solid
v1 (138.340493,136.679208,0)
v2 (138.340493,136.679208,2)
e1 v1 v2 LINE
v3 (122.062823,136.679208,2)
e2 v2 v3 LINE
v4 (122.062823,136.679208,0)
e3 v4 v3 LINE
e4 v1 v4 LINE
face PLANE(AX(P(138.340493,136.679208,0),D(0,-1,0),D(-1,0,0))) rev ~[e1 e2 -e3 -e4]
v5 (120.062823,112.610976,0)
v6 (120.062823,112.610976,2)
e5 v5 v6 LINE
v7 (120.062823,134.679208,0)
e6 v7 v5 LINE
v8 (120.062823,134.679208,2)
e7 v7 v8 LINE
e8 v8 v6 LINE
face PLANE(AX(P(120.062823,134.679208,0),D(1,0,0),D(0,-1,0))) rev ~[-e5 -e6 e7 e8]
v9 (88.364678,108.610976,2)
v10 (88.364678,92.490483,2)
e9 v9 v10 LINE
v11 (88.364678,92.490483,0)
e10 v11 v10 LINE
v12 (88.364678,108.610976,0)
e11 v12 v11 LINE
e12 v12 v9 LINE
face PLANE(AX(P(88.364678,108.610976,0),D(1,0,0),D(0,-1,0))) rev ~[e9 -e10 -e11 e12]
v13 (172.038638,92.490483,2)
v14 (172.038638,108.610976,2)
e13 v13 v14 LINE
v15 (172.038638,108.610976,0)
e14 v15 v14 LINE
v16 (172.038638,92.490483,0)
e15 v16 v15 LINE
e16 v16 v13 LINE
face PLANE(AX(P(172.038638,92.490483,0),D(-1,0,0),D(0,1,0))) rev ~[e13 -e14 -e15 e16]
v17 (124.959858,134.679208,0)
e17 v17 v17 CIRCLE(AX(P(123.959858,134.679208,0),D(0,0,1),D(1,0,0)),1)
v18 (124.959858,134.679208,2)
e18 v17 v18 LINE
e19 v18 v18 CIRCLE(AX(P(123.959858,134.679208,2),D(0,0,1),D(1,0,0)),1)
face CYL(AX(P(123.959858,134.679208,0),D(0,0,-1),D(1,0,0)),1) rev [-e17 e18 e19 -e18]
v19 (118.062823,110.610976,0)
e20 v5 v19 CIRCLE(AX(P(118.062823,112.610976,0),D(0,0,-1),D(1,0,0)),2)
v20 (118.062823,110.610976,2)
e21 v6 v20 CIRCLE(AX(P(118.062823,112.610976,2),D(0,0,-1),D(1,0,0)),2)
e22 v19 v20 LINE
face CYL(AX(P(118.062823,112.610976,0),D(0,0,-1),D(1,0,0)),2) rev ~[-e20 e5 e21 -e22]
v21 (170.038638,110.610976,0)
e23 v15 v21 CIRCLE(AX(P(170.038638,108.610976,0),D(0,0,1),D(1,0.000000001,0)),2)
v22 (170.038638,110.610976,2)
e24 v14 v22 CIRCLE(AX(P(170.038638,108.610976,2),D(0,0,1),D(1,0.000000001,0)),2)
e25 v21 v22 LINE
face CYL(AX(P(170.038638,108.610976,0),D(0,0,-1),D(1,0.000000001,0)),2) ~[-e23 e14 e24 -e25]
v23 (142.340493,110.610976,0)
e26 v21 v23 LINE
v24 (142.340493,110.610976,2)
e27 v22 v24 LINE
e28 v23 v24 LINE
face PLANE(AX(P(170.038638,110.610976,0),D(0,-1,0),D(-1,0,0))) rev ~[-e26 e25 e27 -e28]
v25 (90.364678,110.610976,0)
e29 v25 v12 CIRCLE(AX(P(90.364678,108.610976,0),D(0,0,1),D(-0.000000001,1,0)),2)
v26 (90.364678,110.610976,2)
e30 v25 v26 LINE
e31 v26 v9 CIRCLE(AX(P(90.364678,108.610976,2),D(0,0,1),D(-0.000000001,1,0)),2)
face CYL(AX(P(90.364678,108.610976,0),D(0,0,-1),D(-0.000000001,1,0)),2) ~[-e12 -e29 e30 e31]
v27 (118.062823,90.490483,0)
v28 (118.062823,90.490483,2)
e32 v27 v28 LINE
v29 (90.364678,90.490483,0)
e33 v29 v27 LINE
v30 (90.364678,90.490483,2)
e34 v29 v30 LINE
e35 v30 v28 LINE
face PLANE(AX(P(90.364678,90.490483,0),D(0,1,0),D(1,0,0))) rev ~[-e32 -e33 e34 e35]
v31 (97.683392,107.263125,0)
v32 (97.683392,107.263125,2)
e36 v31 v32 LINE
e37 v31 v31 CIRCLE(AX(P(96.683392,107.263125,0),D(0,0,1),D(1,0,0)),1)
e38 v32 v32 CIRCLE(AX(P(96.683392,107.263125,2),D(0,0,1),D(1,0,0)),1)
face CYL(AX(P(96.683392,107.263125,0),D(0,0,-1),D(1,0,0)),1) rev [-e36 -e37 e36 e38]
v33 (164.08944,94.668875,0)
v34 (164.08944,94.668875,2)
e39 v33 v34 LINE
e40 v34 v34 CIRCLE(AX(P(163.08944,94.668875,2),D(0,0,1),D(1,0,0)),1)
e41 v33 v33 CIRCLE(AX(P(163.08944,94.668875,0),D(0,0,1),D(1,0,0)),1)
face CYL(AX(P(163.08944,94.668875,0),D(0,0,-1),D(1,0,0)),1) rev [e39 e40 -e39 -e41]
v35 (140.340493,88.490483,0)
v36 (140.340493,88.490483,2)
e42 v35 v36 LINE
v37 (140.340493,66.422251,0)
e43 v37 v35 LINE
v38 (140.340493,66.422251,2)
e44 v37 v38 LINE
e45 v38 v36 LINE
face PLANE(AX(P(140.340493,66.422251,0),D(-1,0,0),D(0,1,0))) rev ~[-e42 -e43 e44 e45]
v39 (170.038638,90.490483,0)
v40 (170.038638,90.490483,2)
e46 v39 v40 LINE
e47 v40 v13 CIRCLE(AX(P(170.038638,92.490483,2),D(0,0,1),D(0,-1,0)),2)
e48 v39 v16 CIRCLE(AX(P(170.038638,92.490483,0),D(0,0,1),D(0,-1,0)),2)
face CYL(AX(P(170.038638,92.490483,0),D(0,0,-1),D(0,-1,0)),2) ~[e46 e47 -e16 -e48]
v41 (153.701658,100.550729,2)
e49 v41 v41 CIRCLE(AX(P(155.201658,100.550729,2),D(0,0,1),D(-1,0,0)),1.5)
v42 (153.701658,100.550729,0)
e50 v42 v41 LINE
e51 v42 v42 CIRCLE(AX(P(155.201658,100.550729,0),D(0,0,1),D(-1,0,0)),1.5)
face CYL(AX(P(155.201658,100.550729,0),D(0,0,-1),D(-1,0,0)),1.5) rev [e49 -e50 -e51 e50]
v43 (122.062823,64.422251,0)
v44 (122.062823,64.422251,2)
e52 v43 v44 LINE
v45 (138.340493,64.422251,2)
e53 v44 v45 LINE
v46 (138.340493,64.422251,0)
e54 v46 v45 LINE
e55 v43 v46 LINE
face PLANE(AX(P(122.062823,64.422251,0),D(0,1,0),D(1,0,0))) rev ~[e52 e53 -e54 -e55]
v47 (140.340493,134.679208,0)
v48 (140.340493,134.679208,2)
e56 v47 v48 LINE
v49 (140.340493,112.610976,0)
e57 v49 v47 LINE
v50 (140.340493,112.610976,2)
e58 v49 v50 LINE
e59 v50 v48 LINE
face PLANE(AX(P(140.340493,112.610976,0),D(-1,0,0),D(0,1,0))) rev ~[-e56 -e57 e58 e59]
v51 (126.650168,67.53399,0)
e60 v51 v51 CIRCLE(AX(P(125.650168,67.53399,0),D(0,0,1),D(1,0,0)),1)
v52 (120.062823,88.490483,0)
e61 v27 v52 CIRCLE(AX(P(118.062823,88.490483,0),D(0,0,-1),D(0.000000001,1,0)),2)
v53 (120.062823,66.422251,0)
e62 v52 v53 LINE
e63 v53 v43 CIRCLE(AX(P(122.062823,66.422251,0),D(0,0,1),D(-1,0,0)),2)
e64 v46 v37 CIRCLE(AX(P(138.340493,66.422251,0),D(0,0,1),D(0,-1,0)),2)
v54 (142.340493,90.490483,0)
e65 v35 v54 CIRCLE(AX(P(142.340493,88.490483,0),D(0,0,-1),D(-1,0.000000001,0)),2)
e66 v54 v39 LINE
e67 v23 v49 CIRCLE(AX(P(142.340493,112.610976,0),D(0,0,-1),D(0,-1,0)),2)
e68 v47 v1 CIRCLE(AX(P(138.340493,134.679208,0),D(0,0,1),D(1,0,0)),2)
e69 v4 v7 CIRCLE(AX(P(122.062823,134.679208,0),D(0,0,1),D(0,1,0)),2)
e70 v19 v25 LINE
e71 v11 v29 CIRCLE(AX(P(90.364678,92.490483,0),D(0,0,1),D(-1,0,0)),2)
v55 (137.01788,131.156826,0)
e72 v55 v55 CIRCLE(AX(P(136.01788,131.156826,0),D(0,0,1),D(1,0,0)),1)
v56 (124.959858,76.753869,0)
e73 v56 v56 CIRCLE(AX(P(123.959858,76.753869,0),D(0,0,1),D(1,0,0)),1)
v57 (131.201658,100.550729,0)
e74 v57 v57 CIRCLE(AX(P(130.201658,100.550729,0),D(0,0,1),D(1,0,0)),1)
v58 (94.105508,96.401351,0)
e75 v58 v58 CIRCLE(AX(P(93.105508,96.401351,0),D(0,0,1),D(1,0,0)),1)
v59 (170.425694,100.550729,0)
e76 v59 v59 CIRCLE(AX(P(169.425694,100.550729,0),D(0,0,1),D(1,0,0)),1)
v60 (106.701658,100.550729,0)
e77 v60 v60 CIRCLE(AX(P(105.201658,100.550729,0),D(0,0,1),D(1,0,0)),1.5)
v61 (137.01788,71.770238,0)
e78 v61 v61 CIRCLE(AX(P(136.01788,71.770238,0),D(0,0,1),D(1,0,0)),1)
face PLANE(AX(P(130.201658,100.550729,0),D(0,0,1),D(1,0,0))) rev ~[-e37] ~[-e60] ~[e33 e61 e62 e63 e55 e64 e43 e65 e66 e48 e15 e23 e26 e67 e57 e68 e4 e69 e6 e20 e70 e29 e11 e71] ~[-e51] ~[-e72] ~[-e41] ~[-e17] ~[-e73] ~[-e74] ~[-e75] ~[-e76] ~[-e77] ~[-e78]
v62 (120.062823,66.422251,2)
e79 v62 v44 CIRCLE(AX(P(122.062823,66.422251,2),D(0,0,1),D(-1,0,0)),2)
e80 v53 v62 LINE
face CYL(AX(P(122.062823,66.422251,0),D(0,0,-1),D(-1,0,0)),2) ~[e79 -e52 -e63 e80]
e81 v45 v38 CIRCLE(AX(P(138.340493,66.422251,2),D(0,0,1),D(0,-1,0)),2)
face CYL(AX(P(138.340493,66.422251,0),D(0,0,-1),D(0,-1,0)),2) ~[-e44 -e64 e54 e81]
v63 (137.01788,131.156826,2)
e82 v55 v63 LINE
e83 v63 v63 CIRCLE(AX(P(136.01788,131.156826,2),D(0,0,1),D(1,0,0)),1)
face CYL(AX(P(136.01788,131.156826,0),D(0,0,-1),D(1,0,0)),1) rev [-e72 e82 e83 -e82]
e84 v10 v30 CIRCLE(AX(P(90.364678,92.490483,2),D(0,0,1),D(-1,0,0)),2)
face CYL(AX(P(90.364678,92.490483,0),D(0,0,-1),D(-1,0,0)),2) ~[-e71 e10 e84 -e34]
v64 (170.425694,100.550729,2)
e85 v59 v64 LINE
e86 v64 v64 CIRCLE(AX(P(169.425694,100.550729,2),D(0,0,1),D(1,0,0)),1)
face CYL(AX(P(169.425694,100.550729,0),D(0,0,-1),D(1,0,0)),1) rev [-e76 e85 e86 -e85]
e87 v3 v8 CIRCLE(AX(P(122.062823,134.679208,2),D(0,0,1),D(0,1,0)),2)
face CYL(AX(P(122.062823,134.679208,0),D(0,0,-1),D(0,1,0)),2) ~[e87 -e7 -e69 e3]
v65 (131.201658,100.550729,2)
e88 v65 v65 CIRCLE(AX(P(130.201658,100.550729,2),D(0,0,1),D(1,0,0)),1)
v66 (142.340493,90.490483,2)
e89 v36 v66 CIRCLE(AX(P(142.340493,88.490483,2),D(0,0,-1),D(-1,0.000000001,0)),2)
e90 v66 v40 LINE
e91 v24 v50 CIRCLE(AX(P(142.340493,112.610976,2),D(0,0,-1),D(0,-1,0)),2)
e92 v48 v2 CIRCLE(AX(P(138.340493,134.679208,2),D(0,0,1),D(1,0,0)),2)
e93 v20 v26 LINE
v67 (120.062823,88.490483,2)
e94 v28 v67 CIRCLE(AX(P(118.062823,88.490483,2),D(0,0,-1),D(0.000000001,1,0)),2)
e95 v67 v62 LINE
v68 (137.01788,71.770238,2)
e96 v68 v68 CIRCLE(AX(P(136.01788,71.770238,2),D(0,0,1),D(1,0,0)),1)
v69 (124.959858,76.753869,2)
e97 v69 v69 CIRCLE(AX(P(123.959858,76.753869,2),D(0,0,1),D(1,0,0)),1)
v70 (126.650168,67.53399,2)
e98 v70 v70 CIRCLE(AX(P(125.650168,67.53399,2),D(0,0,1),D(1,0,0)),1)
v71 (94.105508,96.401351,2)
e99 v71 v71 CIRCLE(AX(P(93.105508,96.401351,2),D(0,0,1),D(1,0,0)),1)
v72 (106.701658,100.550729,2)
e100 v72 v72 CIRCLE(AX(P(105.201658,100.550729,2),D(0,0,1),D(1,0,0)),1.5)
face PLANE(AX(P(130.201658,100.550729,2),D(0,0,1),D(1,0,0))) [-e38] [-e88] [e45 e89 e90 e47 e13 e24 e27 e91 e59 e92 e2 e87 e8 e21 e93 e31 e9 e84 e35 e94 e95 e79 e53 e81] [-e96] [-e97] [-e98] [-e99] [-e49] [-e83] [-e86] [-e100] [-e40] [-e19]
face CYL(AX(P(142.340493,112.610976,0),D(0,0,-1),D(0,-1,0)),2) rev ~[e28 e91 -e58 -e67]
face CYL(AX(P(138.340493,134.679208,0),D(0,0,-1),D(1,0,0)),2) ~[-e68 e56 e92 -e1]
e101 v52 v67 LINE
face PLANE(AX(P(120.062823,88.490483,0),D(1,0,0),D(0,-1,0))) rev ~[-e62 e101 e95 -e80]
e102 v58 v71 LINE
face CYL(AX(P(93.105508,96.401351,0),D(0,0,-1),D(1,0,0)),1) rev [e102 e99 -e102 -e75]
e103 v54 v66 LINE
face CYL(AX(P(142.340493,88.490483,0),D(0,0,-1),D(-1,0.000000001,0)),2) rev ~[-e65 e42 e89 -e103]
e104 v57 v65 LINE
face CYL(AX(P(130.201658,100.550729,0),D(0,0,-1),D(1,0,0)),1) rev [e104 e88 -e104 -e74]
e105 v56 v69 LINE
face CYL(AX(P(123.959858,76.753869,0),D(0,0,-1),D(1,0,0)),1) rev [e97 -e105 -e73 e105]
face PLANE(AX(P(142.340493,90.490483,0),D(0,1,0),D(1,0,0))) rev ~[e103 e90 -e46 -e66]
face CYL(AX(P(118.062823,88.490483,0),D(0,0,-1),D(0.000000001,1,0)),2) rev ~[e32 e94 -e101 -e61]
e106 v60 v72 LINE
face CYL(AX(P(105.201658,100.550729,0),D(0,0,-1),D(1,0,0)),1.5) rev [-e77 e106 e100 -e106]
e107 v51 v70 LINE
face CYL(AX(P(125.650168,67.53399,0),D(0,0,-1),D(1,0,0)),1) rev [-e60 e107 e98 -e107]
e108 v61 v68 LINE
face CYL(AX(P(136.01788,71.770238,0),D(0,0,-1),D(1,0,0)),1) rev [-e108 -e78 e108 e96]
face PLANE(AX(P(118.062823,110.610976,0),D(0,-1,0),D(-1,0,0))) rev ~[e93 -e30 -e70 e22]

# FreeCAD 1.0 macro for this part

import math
import FreeCAD as App
import Part
import Sketcher

V = App.Vector
Q = App.Units.Quantity

doc = App.newDocument("Part")
body = doc.addObject("PartDesign::Body", "Body")

# Sketch on XY plane
sketch1 = body.newObject("Sketcher::SketchObject", "Sketch")
sketch1.AttachmentSupport = (doc.getObject("XY_Plane"), [""])
sketch1.MapMode = "FlatFace"
sketch1.addGeometry([
    Part.LineSegment(V(118.1, 110.6, 0), V(90.4, 110.6, 0)),  # 0
    Part.ArcOfCircle(Part.Circle(V(90.4, 108.6, 0), V(0, 0, 1), 2), math.radians(90), math.radians(180)),  # 1
    Part.LineSegment(V(88.4, 108.6, 0), V(88.4, 92.5, 0)),  # 2
    Part.ArcOfCircle(Part.Circle(V(90.4, 92.5, 0), V(0, 0, 1), 2), math.radians(180), math.radians(270)),  # 3
    Part.LineSegment(V(90.4, 90.5, 0), V(118.1, 90.5, 0)),  # 4
    Part.ArcOfCircle(Part.Circle(V(118.1, 88.5, 0), V(0, 0, 1), 2), math.radians(0), math.radians(90)),  # 5
    Part.LineSegment(V(120.1, 88.5, 0), V(120.1, 66.4, 0)),  # 6
    Part.ArcOfCircle(Part.Circle(V(122.1, 66.4, 0), V(0, 0, 1), 2), math.radians(180), math.radians(270)),  # 7
    Part.LineSegment(V(122.1, 64.4, 0), V(138.3, 64.4, 0)),  # 8
    Part.ArcOfCircle(Part.Circle(V(138.3, 66.4, 0), V(0, 0, 1), 2), math.radians(-90), math.radians(0)),  # 9
    Part.LineSegment(V(140.3, 66.4, 0), V(140.3, 88.5, 0)),  # 10
    Part.ArcOfCircle(Part.Circle(V(142.3, 88.5, 0), V(0, 0, 1), 2), math.radians(90), math.radians(180)),  # 11
    Part.LineSegment(V(142.3, 90.5, 0), V(170, 90.5, 0)),  # 12
    Part.ArcOfCircle(Part.Circle(V(170, 92.5, 0), V(0, 0, 1), 2), math.radians(-90), math.radians(0)),  # 13
    Part.LineSegment(V(172, 92.5, 0), V(172, 108.6, 0)),  # 14
    Part.ArcOfCircle(Part.Circle(V(170, 108.6, 0), V(0, 0, 1), 2), math.radians(0), math.radians(90)),  # 15
    Part.LineSegment(V(170, 110.6, 0), V(142.3, 110.6, 0)),  # 16
    Part.ArcOfCircle(Part.Circle(V(142.3, 112.6, 0), V(0, 0, 1), 2), math.radians(180), math.radians(270)),  # 17
    Part.LineSegment(V(140.3, 112.6, 0), V(140.3, 134.7, 0)),  # 18
    Part.ArcOfCircle(Part.Circle(V(138.3, 134.7, 0), V(0, 0, 1), 2), math.radians(0), math.radians(90)),  # 19
    Part.LineSegment(V(138.3, 136.7, 0), V(122.1, 136.7, 0)),  # 20
    Part.ArcOfCircle(Part.Circle(V(122.1, 134.7, 0), V(0, 0, 1), 2), math.radians(90), math.radians(180)),  # 21
    Part.LineSegment(V(120.1, 134.7, 0), V(120.1, 112.6, 0)),  # 22
    Part.ArcOfCircle(Part.Circle(V(118.1, 112.6, 0), V(0, 0, 1), 2), math.radians(-90), math.radians(0)),  # 23
    Part.Circle(V(125.7, 67.5, 0), V(0, 0, 1), 1),  # 24
    Part.Circle(V(124, 76.8, 0), V(0, 0, 1), 1),  # 25
    Part.Circle(V(93.1, 96.4, 0), V(0, 0, 1), 1),  # 26
    Part.Circle(V(105.2, 100.6, 0), V(0, 0, 1), 1.5),  # 27
    Part.Circle(V(130.2, 100.6, 0), V(0, 0, 1), 1),  # 28
    Part.Circle(V(136, 71.8, 0), V(0, 0, 1), 1),  # 29
    Part.Circle(V(155.2, 100.6, 0), V(0, 0, 1), 1.5),  # 30
    Part.Circle(V(163.1, 94.7, 0), V(0, 0, 1), 1),  # 31
    Part.Circle(V(169.4, 100.6, 0), V(0, 0, 1), 1),  # 32
    Part.Circle(V(96.7, 107.3, 0), V(0, 0, 1), 1),  # 33
    Part.Circle(V(124, 134.7, 0), V(0, 0, 1), 1),  # 34
    Part.Circle(V(136, 131.2, 0), V(0, 0, 1), 1),  # 35
], False)
sketch1.addConstraint([
    Sketcher.Constraint("Tangent", 0, 2, 1, 1),
    Sketcher.Constraint("Tangent", 1, 2, 2, 1),
    Sketcher.Constraint("Tangent", 2, 2, 3, 1),
    Sketcher.Constraint("Tangent", 3, 2, 4, 1),
    Sketcher.Constraint("Tangent", 4, 2, 5, 2),
    Sketcher.Constraint("Tangent", 5, 1, 6, 1),
    Sketcher.Constraint("Tangent", 6, 2, 7, 1),
    Sketcher.Constraint("Tangent", 7, 2, 8, 1),
    Sketcher.Constraint("Tangent", 8, 2, 9, 1),
    Sketcher.Constraint("Tangent", 9, 2, 10, 1),
    Sketcher.Constraint("Tangent", 10, 2, 11, 2),
    Sketcher.Constraint("Tangent", 11, 1, 12, 1),
    Sketcher.Constraint("Tangent", 12, 2, 13, 1),
    Sketcher.Constraint("Tangent", 13, 2, 14, 1),
    Sketcher.Constraint("Tangent", 14, 2, 15, 1),
    Sketcher.Constraint("Tangent", 15, 2, 16, 1),
    Sketcher.Constraint("Tangent", 16, 2, 17, 2),
    Sketcher.Constraint("Tangent", 17, 1, 18, 1),
    Sketcher.Constraint("Tangent", 18, 2, 19, 1),
    Sketcher.Constraint("Tangent", 19, 2, 20, 1),
    Sketcher.Constraint("Tangent", 20, 2, 21, 1),
    Sketcher.Constraint("Tangent", 21, 2, 22, 1),
    Sketcher.Constraint("Tangent", 22, 2, 23, 2),
    Sketcher.Constraint("Tangent", 23, 1, 0, 1),
    Sketcher.Constraint("Horizontal", 0),
    Sketcher.Constraint("Vertical", 2),
    Sketcher.Constraint("Horizontal", 4),
    Sketcher.Constraint("Vertical", 6),
    Sketcher.Constraint("Horizontal", 8),
    Sketcher.Constraint("Vertical", 10),
    Sketcher.Constraint("Horizontal", 12),
    Sketcher.Constraint("Vertical", 14),
    Sketcher.Constraint("Horizontal", 16),
    Sketcher.Constraint("Vertical", 18),
    Sketcher.Constraint("Horizontal", 20),
    Sketcher.Constraint("Vertical", 22),
    Sketcher.Constraint("Equal", 1, 3),
    Sketcher.Constraint("Equal", 3, 5),
    Sketcher.Constraint("Equal", 5, 7),
    Sketcher.Constraint("Equal", 7, 9),
    Sketcher.Constraint("Equal", 9, 11),
    Sketcher.Constraint("Equal", 11, 13),
    Sketcher.Constraint("Equal", 13, 15),
    Sketcher.Constraint("Equal", 15, 17),
    Sketcher.Constraint("Equal", 17, 19),
    Sketcher.Constraint("Equal", 19, 21),
    Sketcher.Constraint("Equal", 21, 23),
    Sketcher.Constraint("Equal", 24, 25),
    Sketcher.Constraint("Equal", 25, 26),
    Sketcher.Constraint("Equal", 26, 28),
    Sketcher.Constraint("Equal", 28, 29),
    Sketcher.Constraint("Equal", 27, 30),
    Sketcher.Constraint("Equal", 29, 31),
    Sketcher.Constraint("Equal", 31, 32),
    Sketcher.Constraint("Equal", 32, 33),
    Sketcher.Constraint("Equal", 33, 34),
    Sketcher.Constraint("Equal", 34, 35),
    Sketcher.Constraint("Horizontal", 5, 3, 11, 3),
    Sketcher.Constraint("Horizontal", 1, 3, 15, 3),
    Sketcher.Constraint("Horizontal", 27, 3, 28, 3),
    Sketcher.Constraint("Horizontal", 28, 3, 30, 3),
    Sketcher.Constraint("Horizontal", 30, 3, 32, 3),
    Sketcher.Constraint("Horizontal", 21, 3, 34, 3),
    Sketcher.Constraint("Vertical", 11, 3, 17, 3),
    Sketcher.Constraint("Vertical", 7, 3, 21, 3),
    Sketcher.Constraint("Vertical", 25, 3, 34, 3),
    Sketcher.Constraint("Vertical", 29, 3, 35, 3),
    Sketcher.Constraint("Equal", 4, 12),
    Sketcher.Constraint("Equal", 10, 18),
    Sketcher.Constraint("Diameter", 24, Q("2 mm")),
    Sketcher.Constraint("Diameter", 27, Q("3 mm")),
    Sketcher.Constraint("Radius", 1, Q("2 mm")),
    Sketcher.Constraint("DistanceX", 28, 3, 30, 3, Q("25 mm")),
    Sketcher.Constraint("DistanceX", 8, 1, 8, 2, Q("16.277671 mm")),
    Sketcher.Constraint("DistanceY", 6, 2, 6, 1, Q("22.068231 mm")),
    Sketcher.Constraint("DistanceX", 25, 3, 28, 3, Q("6.2418 mm")),
    Sketcher.Constraint("DistanceX", 31, 3, 13, 3, Q("6.949198 mm")),
    Sketcher.Constraint("DistanceY", 31, 3, 15, 3, Q("13.942101 mm")),
    Sketcher.Constraint("DistanceX", 11, 3, 32, 3, Q("27.085201 mm")),
    Sketcher.Constraint("DistanceX", 0, 2, 0, 1, Q("27.698145 mm")),
    Sketcher.Constraint("DistanceY", 2, 2, 2, 1, Q("16.120494 mm")),
    Sketcher.Constraint("DistanceX", -1, 1, 1, 3, Q("90.364678 mm")),
    Sketcher.Constraint("DistanceY", -1, 1, 7, 3, Q("66.422251 mm")),
    Sketcher.Constraint("DistanceX", -1, 1, 24, 3, Q("125.650168 mm")),
    Sketcher.Constraint("DistanceY", -1, 1, 24, 3, Q("67.53399 mm")),
    Sketcher.Constraint("DistanceX", -1, 1, 25, 3, Q("123.959858 mm")),
    Sketcher.Constraint("DistanceY", -1, 1, 25, 3, Q("76.753869 mm")),
    Sketcher.Constraint("DistanceX", -1, 1, 26, 3, Q("93.105508 mm")),
    Sketcher.Constraint("DistanceY", -1, 1, 26, 3, Q("96.401351 mm")),
    Sketcher.Constraint("DistanceX", -1, 1, 27, 3, Q("105.201658 mm")),
    Sketcher.Constraint("DistanceY", -1, 1, 27, 3, Q("100.550729 mm")),
    Sketcher.Constraint("DistanceX", -1, 1, 29, 3, Q("136.01788 mm")),
    Sketcher.Constraint("DistanceY", 29, 3, 25, 3, Q("4.983631 mm")),
    Sketcher.Constraint("DistanceY", 33, 3, 1, 3, Q("1.347851 mm")),
    Sketcher.Constraint("DistanceX", 33, 3, 23, 3, Q("21.37943 mm")),
    Sketcher.Constraint("DistanceY", 35, 3, 19, 3, Q("3.522381 mm")),
])
pad1 = body.newObject("PartDesign::Pad", "Pad")
pad1.Profile = sketch1
pad1.Length = 2

doc.recompute()
